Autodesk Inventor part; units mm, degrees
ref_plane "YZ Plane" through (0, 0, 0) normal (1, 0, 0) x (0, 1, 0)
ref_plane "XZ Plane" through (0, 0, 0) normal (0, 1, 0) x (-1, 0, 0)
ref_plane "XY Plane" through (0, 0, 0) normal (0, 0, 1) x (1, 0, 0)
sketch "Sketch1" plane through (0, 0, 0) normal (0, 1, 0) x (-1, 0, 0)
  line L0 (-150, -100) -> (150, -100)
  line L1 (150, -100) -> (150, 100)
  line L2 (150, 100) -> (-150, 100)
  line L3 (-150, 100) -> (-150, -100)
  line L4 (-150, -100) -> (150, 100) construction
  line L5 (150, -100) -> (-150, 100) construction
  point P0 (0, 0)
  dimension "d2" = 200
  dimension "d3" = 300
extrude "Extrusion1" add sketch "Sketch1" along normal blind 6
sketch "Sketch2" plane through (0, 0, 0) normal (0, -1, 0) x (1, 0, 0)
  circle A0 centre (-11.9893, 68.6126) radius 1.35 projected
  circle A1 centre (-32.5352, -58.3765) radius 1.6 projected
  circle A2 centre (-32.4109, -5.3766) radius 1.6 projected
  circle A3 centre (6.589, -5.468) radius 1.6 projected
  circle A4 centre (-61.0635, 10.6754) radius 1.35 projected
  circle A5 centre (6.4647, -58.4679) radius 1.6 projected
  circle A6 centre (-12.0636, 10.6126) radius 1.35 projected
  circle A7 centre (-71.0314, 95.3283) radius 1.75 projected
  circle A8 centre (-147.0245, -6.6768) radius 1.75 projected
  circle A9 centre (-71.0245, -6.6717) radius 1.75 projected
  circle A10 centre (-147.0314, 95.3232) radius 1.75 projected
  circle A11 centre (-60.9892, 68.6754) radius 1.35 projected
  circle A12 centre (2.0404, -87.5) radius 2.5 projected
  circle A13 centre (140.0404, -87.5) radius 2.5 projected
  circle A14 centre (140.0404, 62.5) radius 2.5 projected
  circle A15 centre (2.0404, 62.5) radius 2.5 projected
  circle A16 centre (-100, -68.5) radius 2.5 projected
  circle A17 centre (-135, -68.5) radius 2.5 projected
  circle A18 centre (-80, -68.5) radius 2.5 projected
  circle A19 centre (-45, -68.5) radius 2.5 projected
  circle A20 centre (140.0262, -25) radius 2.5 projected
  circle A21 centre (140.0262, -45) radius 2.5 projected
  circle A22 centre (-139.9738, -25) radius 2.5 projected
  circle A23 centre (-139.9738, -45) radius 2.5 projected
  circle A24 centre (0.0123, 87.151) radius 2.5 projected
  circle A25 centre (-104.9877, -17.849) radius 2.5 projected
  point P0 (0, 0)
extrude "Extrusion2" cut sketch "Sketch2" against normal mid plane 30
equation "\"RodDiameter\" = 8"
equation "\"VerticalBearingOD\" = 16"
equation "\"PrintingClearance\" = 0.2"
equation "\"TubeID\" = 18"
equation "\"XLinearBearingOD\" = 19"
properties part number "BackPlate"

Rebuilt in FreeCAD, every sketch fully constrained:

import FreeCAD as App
import Part
import Sketcher

V = App.Vector

doc = App.newDocument("Part")
body = doc.addObject("PartDesign::Body", "Body")

# Sketch on XZ plane
sketch1 = body.newObject("Sketcher::SketchObject", "Sketch")
sketch1.AttachmentSupport = (doc.getObject("XZ_Plane"), [""])
sketch1.MapMode = "FlatFace"
sketch1.addGeometry([
    Part.LineSegment(V(150, 100, 0), V(150, -100, 0)),
    Part.LineSegment(V(150, -100, 0), V(-150, -100, 0)),
    Part.LineSegment(V(-150, -100, 0), V(-150, 100, 0)),
    Part.LineSegment(V(-150, 100, 0), V(150, 100, 0)),
], False)
sketch1.addConstraint([
    Sketcher.Constraint("Coincident", 0, 2, 1, 1),
    Sketcher.Constraint("Coincident", 1, 2, 2, 1),
    Sketcher.Constraint("Coincident", 2, 2, 3, 1),
    Sketcher.Constraint("Coincident", 3, 2, 0, 1),
    Sketcher.Constraint("Vertical", 0),
    Sketcher.Constraint("Horizontal", 1),
    Sketcher.Constraint("Vertical", 2),
    Sketcher.Constraint("Horizontal", 3),
    Sketcher.Constraint("Symmetric", 0, 2, 2, 2, -1, 1),
    Sketcher.Constraint("DistanceX", 1, 2, 1, 1, 300.0),
    Sketcher.Constraint("DistanceY", 0, 2, 0, 1, 200.0),
])
pad1 = body.newObject("PartDesign::Pad", "Pad")
pad1.Profile = sketch1
pad1.Length = 6
pad1.Reversed = True

# Sketch on XZ plane
sketch2 = body.newObject("Sketcher::SketchObject", "Sketch001")
sketch2.AttachmentSupport = (doc.getObject("XZ_Plane"), [""])
sketch2.MapMode = "FlatFace"
sketch2.addGeometry([
    Part.Circle(V(-12, 68.6, 0), V(0, 0, 1), 1.4),  # 0
    Part.Circle(V(-32.5, -58.4, 0), V(0, 0, 1), 1.6),  # 1
    Part.Circle(V(-32.4, -5.4, 0), V(0, 0, 1), 1.6),  # 2
    Part.Circle(V(6.6, -5.5, 0), V(0, 0, 1), 1.6),  # 3
    Part.Circle(V(-61.1, 10.7, 0), V(0, 0, 1), 1.4),  # 4
    Part.Circle(V(6.5, -58.5, 0), V(0, 0, 1), 1.6),  # 5
    Part.Circle(V(-12.1, 10.6, 0), V(0, 0, 1), 1.4),  # 6
    Part.Circle(V(-71, 95.3, 0), V(0, 0, 1), 1.8),  # 7
    Part.Circle(V(-147, -6.7, 0), V(0, 0, 1), 1.8),  # 8
    Part.Circle(V(-71, -6.7, 0), V(0, 0, 1), 1.8),  # 9
    Part.Circle(V(-147, 95.3, 0), V(0, 0, 1), 1.8),  # 10
    Part.Circle(V(-61, 68.7, 0), V(0, 0, 1), 1.4),  # 11
    Part.Circle(V(2, -87.5, 0), V(0, 0, 1), 2.5),  # 12
    Part.Circle(V(140, -87.5, 0), V(0, 0, 1), 2.5),  # 13
    Part.Circle(V(140, 62.5, 0), V(0, 0, 1), 2.5),  # 14
    Part.Circle(V(2, 62.5, 0), V(0, 0, 1), 2.5),  # 15
    Part.Circle(V(-100, -68.5, 0), V(0, 0, 1), 2.5),  # 16
    Part.Circle(V(-135, -68.5, 0), V(0, 0, 1), 2.5),  # 17
    Part.Circle(V(-80, -68.5, 0), V(0, 0, 1), 2.5),  # 18
    Part.Circle(V(-45, -68.5, 0), V(0, 0, 1), 2.5),  # 19
    Part.Circle(V(140, -25, 0), V(0, 0, 1), 2.5),  # 20
    Part.Circle(V(140, -45, 0), V(0, 0, 1), 2.5),  # 21
    Part.Circle(V(-140, -25, 0), V(0, 0, 1), 2.5),  # 22
    Part.Circle(V(-140, -45, 0), V(0, 0, 1), 2.5),  # 23
    Part.Circle(V(0, 87.2, 0), V(0, 0, 1), 2.5),  # 24
    Part.Circle(V(-105, -17.8, 0), V(0, 0, 1), 2.5),  # 25
], False)
sketch2.addConstraint([
    Sketcher.Constraint("Equal", 1, 2),
    Sketcher.Constraint("Equal", 2, 3),
    Sketcher.Constraint("Equal", 0, 4),
    Sketcher.Constraint("Equal", 3, 5),
    Sketcher.Constraint("Equal", 4, 6),
    Sketcher.Constraint("Equal", 7, 8),
    Sketcher.Constraint("Equal", 8, 9),
    Sketcher.Constraint("Equal", 9, 10),
    Sketcher.Constraint("Equal", 6, 11),
    Sketcher.Constraint("Equal", 12, 13),
    Sketcher.Constraint("Equal", 13, 14),
    Sketcher.Constraint("Equal", 14, 15),
    Sketcher.Constraint("Equal", 15, 16),
    Sketcher.Constraint("Equal", 16, 17),
    Sketcher.Constraint("Equal", 17, 18),
    Sketcher.Constraint("Equal", 18, 19),
    Sketcher.Constraint("Equal", 19, 20),
    Sketcher.Constraint("Equal", 20, 21),
    Sketcher.Constraint("Equal", 21, 22),
    Sketcher.Constraint("Equal", 22, 23),
    Sketcher.Constraint("Equal", 23, 24),
    Sketcher.Constraint("Equal", 24, 25),
    Sketcher.Constraint("Horizontal", 12, 3, 13, 3),
    Sketcher.Constraint("Horizontal", 14, 3, 15, 3),
    Sketcher.Constraint("Horizontal", 16, 3, 17, 3),
    Sketcher.Constraint("Horizontal", 17, 3, 18, 3),
    Sketcher.Constraint("Horizontal", 18, 3, 19, 3),
    Sketcher.Constraint("Horizontal", 20, 3, 22, 3),
    Sketcher.Constraint("Horizontal", 21, 3, 23, 3),
    Sketcher.Constraint("Vertical", 13, 3, 14, 3),
    Sketcher.Constraint("Vertical", 12, 3, 15, 3),
    Sketcher.Constraint("Vertical", 20, 3, 21, 3),
    Sketcher.Constraint("Vertical", 22, 3, 23, 3),
    Sketcher.Constraint("Diameter", 12, 5.0),
    Sketcher.Constraint("Diameter", 0, 2.7),
    Sketcher.Constraint("Diameter", 1, 3.2),
    Sketcher.Constraint("Diameter", 7, 3.5),
    Sketcher.Constraint("DistanceX", 16, 3, -1, 1, 100.0),
    Sketcher.Constraint("DistanceX", 17, 3, -1, 1, 135.0),
    Sketcher.Constraint("DistanceX", 18, 3, -1, 1, 80.0),
    Sketcher.Constraint("DistanceX", 19, 3, -1, 1, 45.0),
    Sketcher.Constraint("DistanceY", 20, 3, -1, 1, 25.0),
    Sketcher.Constraint("DistanceY", 21, 3, -1, 1, 45.0),
    Sketcher.Constraint("DistanceY", 1, 3, 2, 3, 53.0),
    Sketcher.Constraint("DistanceX", 2, 3, 3, 3, 39.0),
    Sketcher.Constraint("DistanceX", 1, 3, 5, 3, 39.0),
    Sketcher.Constraint("DistanceY", 5, 3, 3, 3, 53.0),
    Sketcher.Constraint("DistanceX", 4, 3, 6, 3, 49.0),
    Sketcher.Constraint("DistanceY", 6, 3, 0, 3, 58.0),
    Sketcher.Constraint("DistanceX", 8, 3, 9, 3, 76.0),
    Sketcher.Constraint("DistanceX", 10, 3, 7, 3, 76.0),
    Sketcher.Constraint("DistanceY", 8, 3, 10, 3, 102.0),
    Sketcher.Constraint("DistanceX", 11, 3, 0, 3, 49.0),
    Sketcher.Constraint("DistanceY", 4, 3, 11, 3, 58.0),
    Sketcher.Constraint("DistanceX", 12, 3, 13, 3, 138.0),
    Sketcher.Constraint("DistanceY", 13, 3, 14, 3, 150.0),
    Sketcher.Constraint("DistanceY", 12, 3, 19, 3, 19.0),
    Sketcher.Constraint("DistanceY", 12, 3, -1, 1, 87.5),
    Sketcher.Constraint("DistanceX", 2, 3, -1, 1, 32.411),
    Sketcher.Constraint("DistanceY", 3, 3, -1, 1, 5.468),
    Sketcher.Constraint("DistanceY", -1, 1, 24, 3, 87.151),
    Sketcher.Constraint("DistanceY", 25, 3, -1, 1, 17.849),
    Sketcher.Constraint("DistanceX", 1, 3, 0, 3, 20.546),
    Sketcher.Constraint("DistanceY", 1, 3, 0, 3, 126.989),
    Sketcher.Constraint("DistanceY", 2, 3, 4, 3, 16.052),
    Sketcher.Constraint("DistanceX", 7, 3, 0, 3, 59.042),
    Sketcher.Constraint("DistanceX", 7, 3, 4, 3, 9.968),
    Sketcher.Constraint("DistanceY", 4, 3, 7, 3, 84.653),
    Sketcher.Constraint("DistanceX", 8, 3, 4, 3, 85.961),
    Sketcher.Constraint("DistanceY", 8, 3, 7, 3, 102.005),
    Sketcher.Constraint("DistanceY", 9, 3, 4, 3, 17.347),
    Sketcher.Constraint("DistanceX", 6, 3, 12, 3, 14.104),
    Sketcher.Constraint("DistanceX", 24, 3, 15, 3, 2.028),
    Sketcher.Constraint("DistanceX", 22, 3, 25, 3, 34.986),
    Sketcher.Constraint("DistanceX", 0, 3, -1, 1, 11.9893),
    Sketcher.Constraint("DistanceY", -1, 1, 0, 3, 68.6126),
    Sketcher.Constraint("DistanceX", -1, 1, 20, 3, 140.0262),
    Sketcher.Constraint("DistanceX", 22, 3, -1, 1, 139.9738),
])
pocket1 = body.newObject("PartDesign::Pocket", "Pocket")
pocket1.Profile = sketch2
pocket1.Length = 30
pocket1.Midplane = True

doc.recompute()
